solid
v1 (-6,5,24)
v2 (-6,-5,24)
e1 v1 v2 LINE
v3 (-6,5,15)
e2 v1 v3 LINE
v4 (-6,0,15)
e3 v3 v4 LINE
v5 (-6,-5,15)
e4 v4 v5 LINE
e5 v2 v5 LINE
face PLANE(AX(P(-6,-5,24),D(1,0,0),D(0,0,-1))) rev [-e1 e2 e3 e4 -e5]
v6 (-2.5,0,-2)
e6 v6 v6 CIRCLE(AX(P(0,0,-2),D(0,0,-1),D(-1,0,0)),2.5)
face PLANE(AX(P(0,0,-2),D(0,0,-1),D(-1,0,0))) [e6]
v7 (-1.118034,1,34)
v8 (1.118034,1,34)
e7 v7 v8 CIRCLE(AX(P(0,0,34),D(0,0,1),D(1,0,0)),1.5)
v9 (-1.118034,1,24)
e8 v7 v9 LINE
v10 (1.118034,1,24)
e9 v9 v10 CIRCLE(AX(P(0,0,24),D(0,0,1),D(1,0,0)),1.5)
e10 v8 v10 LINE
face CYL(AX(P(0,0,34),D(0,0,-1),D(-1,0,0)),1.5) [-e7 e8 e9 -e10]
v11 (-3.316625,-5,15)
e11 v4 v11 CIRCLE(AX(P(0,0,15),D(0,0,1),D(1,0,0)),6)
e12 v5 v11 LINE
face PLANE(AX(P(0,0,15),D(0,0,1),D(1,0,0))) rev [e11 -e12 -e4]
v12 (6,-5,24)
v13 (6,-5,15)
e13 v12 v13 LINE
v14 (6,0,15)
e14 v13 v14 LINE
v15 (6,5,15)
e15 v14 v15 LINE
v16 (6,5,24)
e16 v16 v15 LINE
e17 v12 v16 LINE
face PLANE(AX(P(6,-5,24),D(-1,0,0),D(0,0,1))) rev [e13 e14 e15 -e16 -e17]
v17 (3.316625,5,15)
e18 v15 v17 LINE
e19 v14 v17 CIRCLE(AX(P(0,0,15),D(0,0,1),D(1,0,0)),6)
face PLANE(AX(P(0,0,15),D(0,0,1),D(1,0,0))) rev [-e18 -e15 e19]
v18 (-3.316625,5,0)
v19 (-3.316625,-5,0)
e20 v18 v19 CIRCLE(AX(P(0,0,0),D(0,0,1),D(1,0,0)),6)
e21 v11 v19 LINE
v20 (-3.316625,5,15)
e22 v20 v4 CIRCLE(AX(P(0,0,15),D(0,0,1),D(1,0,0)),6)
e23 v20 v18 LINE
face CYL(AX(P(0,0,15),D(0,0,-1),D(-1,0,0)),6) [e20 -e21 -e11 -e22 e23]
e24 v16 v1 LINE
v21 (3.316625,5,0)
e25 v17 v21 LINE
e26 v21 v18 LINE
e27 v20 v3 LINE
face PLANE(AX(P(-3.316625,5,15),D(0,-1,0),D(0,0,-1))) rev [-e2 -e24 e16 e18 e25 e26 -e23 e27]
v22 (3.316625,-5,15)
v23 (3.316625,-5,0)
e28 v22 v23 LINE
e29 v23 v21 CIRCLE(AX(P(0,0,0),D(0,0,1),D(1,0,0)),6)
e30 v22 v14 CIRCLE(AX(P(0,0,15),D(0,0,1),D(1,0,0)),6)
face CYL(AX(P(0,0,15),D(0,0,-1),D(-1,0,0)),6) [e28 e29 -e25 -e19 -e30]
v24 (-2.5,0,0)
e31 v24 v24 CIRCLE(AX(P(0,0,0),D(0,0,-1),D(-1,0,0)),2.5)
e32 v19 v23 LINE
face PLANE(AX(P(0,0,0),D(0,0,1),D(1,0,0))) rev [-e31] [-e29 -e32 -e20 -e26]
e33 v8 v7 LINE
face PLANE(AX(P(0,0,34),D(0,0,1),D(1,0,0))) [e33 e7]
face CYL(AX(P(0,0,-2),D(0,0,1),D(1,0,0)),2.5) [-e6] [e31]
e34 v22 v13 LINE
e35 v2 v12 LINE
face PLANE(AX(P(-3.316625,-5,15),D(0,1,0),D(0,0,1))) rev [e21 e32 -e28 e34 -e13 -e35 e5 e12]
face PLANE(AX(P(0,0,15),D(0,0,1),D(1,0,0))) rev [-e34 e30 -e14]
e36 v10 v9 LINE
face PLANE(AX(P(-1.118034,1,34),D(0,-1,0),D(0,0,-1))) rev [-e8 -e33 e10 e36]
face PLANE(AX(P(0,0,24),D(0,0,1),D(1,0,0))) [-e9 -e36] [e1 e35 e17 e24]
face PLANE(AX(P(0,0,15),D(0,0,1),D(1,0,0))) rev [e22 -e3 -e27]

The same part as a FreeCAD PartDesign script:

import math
import FreeCAD as App
import Part
import Sketcher

V = App.Vector


def add_polygon(sketch, points):
    """Adds a closed chain of lines whose ends are joined by coincident constraints."""
    first, n = sketch.GeometryCount, len(points)
    for a, b in zip(points, points[1:] + points[:1]):
        sketch.addGeometry(Part.LineSegment(App.Vector(*a, 0), App.Vector(*b, 0)), False)
    for i in range(n):
        sketch.addConstraint(Sketcher.Constraint("Coincident", first + i, 2, first + (i + 1) % n, 1))

doc = App.newDocument("Part")
body = doc.addObject("PartDesign::Body", "Body")

# Sketch on XY plane
sketch1 = body.newObject("Sketcher::SketchObject", "Sketch")
sketch1.AttachmentSupport = (doc.getObject("XY_Plane"), [""])
sketch1.MapMode = "FlatFace"
sketch1.addGeometry([
    Part.LineSegment(V(3.316625, 5, 0), V(-3.316625, 5, 0)),
    Part.ArcOfCircle(Part.Circle(V(0, 0, 0), V(0, 0, 1), 6), math.radians(123.55731), math.radians(236.44269)),
    Part.LineSegment(V(-3.316625, -5, 0), V(3.316625, -5, 0)),
    Part.ArcOfCircle(Part.Circle(V(0, 0, 0), V(0, 0, 1), 6), math.radians(-56.44269), math.radians(56.44269)),
], False)
sketch1.addConstraint([
    Sketcher.Constraint("Coincident", 0, 2, 1, 1),
    Sketcher.Constraint("Coincident", 1, 2, 2, 1),
    Sketcher.Constraint("Coincident", 2, 2, 3, 1),
    Sketcher.Constraint("Coincident", 3, 2, 0, 1),
    Sketcher.Constraint("Horizontal", 0),
    Sketcher.Constraint("Horizontal", 2),
    Sketcher.Constraint("Coincident", 1, 3, -1, 1),
    Sketcher.Constraint("Coincident", 3, 3, -1, 1),
    Sketcher.Constraint("Equal", 1, 3),
    Sketcher.Constraint("Vertical", 0, 2, 1, 2),
    Sketcher.Constraint("Radius", 1, 6.0),
    Sketcher.Constraint("DistanceY", -1, 1, 0, 2, 5.0),
])
pad1 = body.newObject("PartDesign::Pad", "Pad")
pad1.Profile = sketch1
pad1.Length = 15

# Sketch on XY plane
sketch2 = body.newObject("Sketcher::SketchObject", "Sketch001")
sketch2.AttachmentSupport = (doc.getObject("XY_Plane"), [""])
sketch2.MapMode = "FlatFace"
sketch2.AttachmentOffset = App.Placement(V(0, 0, 15), App.Rotation())
add_polygon(sketch2, [(-6, 5), (-6, -5), (6, -5), (6, 5)])  # lines 0-3
sketch2.addConstraint([
    Sketcher.Constraint("Vertical", 0),
    Sketcher.Constraint("Horizontal", 1),
    Sketcher.Constraint("Vertical", 2),
    Sketcher.Constraint("Horizontal", 3),
    Sketcher.Constraint("Symmetric", 0, 2, 2, 2, -1, 1),
    Sketcher.Constraint("DistanceX", 1, 1, 1, 2, 12.0),
    Sketcher.Constraint("DistanceY", 0, 2, 0, 1, 10.0),
])
pad2 = body.newObject("PartDesign::Pad", "Pad001")
pad2.Profile = sketch2
pad2.Length = 9

# Sketch on XY plane
sketch3 = body.newObject("Sketcher::SketchObject", "Sketch002")
sketch3.AttachmentSupport = (doc.getObject("XY_Plane"), [""])
sketch3.MapMode = "FlatFace"
sketch3.addGeometry(Part.Circle(V(0, 0, 0), V(0, 0, 1), 2.5), False)
sketch3.addConstraint([
    Sketcher.Constraint("Coincident", 0, 3, -1, 1),
    Sketcher.Constraint("Diameter", 0, 5.0),
])
pad3 = body.newObject("PartDesign::Pad", "Pad002")
pad3.Profile = sketch3
pad3.Length = 2
pad3.Reversed = True

# Sketch on XY plane
sketch4 = body.newObject("Sketcher::SketchObject", "Sketch003")
sketch4.AttachmentSupport = (doc.getObject("XY_Plane"), [""])
sketch4.MapMode = "FlatFace"
sketch4.AttachmentOffset = App.Placement(V(0, 0, 24), App.Rotation())
sketch4.addGeometry([
    Part.LineSegment(V(1.118034, 1, 0), V(-1.118034, 1, 0)),
    Part.ArcOfCircle(Part.Circle(V(0, 0, 0), V(0, 0, 1), 1.5), math.radians(138.189685), math.radians(401.810315)),
], False)
sketch4.addConstraint([
    Sketcher.Constraint("Coincident", 0, 1, 1, 2),
    Sketcher.Constraint("Coincident", 1, 1, 0, 2),
    Sketcher.Constraint("Horizontal", 0),
    Sketcher.Constraint("Coincident", 1, 3, -1, 1),
    Sketcher.Constraint("Radius", 1, 1.5),
    Sketcher.Constraint("DistanceY", -1, 1, 0, 1, 1.0),
])
pad4 = body.newObject("PartDesign::Pad", "Pad003")
pad4.Profile = sketch4
pad4.Length = 10

doc.recompute()
